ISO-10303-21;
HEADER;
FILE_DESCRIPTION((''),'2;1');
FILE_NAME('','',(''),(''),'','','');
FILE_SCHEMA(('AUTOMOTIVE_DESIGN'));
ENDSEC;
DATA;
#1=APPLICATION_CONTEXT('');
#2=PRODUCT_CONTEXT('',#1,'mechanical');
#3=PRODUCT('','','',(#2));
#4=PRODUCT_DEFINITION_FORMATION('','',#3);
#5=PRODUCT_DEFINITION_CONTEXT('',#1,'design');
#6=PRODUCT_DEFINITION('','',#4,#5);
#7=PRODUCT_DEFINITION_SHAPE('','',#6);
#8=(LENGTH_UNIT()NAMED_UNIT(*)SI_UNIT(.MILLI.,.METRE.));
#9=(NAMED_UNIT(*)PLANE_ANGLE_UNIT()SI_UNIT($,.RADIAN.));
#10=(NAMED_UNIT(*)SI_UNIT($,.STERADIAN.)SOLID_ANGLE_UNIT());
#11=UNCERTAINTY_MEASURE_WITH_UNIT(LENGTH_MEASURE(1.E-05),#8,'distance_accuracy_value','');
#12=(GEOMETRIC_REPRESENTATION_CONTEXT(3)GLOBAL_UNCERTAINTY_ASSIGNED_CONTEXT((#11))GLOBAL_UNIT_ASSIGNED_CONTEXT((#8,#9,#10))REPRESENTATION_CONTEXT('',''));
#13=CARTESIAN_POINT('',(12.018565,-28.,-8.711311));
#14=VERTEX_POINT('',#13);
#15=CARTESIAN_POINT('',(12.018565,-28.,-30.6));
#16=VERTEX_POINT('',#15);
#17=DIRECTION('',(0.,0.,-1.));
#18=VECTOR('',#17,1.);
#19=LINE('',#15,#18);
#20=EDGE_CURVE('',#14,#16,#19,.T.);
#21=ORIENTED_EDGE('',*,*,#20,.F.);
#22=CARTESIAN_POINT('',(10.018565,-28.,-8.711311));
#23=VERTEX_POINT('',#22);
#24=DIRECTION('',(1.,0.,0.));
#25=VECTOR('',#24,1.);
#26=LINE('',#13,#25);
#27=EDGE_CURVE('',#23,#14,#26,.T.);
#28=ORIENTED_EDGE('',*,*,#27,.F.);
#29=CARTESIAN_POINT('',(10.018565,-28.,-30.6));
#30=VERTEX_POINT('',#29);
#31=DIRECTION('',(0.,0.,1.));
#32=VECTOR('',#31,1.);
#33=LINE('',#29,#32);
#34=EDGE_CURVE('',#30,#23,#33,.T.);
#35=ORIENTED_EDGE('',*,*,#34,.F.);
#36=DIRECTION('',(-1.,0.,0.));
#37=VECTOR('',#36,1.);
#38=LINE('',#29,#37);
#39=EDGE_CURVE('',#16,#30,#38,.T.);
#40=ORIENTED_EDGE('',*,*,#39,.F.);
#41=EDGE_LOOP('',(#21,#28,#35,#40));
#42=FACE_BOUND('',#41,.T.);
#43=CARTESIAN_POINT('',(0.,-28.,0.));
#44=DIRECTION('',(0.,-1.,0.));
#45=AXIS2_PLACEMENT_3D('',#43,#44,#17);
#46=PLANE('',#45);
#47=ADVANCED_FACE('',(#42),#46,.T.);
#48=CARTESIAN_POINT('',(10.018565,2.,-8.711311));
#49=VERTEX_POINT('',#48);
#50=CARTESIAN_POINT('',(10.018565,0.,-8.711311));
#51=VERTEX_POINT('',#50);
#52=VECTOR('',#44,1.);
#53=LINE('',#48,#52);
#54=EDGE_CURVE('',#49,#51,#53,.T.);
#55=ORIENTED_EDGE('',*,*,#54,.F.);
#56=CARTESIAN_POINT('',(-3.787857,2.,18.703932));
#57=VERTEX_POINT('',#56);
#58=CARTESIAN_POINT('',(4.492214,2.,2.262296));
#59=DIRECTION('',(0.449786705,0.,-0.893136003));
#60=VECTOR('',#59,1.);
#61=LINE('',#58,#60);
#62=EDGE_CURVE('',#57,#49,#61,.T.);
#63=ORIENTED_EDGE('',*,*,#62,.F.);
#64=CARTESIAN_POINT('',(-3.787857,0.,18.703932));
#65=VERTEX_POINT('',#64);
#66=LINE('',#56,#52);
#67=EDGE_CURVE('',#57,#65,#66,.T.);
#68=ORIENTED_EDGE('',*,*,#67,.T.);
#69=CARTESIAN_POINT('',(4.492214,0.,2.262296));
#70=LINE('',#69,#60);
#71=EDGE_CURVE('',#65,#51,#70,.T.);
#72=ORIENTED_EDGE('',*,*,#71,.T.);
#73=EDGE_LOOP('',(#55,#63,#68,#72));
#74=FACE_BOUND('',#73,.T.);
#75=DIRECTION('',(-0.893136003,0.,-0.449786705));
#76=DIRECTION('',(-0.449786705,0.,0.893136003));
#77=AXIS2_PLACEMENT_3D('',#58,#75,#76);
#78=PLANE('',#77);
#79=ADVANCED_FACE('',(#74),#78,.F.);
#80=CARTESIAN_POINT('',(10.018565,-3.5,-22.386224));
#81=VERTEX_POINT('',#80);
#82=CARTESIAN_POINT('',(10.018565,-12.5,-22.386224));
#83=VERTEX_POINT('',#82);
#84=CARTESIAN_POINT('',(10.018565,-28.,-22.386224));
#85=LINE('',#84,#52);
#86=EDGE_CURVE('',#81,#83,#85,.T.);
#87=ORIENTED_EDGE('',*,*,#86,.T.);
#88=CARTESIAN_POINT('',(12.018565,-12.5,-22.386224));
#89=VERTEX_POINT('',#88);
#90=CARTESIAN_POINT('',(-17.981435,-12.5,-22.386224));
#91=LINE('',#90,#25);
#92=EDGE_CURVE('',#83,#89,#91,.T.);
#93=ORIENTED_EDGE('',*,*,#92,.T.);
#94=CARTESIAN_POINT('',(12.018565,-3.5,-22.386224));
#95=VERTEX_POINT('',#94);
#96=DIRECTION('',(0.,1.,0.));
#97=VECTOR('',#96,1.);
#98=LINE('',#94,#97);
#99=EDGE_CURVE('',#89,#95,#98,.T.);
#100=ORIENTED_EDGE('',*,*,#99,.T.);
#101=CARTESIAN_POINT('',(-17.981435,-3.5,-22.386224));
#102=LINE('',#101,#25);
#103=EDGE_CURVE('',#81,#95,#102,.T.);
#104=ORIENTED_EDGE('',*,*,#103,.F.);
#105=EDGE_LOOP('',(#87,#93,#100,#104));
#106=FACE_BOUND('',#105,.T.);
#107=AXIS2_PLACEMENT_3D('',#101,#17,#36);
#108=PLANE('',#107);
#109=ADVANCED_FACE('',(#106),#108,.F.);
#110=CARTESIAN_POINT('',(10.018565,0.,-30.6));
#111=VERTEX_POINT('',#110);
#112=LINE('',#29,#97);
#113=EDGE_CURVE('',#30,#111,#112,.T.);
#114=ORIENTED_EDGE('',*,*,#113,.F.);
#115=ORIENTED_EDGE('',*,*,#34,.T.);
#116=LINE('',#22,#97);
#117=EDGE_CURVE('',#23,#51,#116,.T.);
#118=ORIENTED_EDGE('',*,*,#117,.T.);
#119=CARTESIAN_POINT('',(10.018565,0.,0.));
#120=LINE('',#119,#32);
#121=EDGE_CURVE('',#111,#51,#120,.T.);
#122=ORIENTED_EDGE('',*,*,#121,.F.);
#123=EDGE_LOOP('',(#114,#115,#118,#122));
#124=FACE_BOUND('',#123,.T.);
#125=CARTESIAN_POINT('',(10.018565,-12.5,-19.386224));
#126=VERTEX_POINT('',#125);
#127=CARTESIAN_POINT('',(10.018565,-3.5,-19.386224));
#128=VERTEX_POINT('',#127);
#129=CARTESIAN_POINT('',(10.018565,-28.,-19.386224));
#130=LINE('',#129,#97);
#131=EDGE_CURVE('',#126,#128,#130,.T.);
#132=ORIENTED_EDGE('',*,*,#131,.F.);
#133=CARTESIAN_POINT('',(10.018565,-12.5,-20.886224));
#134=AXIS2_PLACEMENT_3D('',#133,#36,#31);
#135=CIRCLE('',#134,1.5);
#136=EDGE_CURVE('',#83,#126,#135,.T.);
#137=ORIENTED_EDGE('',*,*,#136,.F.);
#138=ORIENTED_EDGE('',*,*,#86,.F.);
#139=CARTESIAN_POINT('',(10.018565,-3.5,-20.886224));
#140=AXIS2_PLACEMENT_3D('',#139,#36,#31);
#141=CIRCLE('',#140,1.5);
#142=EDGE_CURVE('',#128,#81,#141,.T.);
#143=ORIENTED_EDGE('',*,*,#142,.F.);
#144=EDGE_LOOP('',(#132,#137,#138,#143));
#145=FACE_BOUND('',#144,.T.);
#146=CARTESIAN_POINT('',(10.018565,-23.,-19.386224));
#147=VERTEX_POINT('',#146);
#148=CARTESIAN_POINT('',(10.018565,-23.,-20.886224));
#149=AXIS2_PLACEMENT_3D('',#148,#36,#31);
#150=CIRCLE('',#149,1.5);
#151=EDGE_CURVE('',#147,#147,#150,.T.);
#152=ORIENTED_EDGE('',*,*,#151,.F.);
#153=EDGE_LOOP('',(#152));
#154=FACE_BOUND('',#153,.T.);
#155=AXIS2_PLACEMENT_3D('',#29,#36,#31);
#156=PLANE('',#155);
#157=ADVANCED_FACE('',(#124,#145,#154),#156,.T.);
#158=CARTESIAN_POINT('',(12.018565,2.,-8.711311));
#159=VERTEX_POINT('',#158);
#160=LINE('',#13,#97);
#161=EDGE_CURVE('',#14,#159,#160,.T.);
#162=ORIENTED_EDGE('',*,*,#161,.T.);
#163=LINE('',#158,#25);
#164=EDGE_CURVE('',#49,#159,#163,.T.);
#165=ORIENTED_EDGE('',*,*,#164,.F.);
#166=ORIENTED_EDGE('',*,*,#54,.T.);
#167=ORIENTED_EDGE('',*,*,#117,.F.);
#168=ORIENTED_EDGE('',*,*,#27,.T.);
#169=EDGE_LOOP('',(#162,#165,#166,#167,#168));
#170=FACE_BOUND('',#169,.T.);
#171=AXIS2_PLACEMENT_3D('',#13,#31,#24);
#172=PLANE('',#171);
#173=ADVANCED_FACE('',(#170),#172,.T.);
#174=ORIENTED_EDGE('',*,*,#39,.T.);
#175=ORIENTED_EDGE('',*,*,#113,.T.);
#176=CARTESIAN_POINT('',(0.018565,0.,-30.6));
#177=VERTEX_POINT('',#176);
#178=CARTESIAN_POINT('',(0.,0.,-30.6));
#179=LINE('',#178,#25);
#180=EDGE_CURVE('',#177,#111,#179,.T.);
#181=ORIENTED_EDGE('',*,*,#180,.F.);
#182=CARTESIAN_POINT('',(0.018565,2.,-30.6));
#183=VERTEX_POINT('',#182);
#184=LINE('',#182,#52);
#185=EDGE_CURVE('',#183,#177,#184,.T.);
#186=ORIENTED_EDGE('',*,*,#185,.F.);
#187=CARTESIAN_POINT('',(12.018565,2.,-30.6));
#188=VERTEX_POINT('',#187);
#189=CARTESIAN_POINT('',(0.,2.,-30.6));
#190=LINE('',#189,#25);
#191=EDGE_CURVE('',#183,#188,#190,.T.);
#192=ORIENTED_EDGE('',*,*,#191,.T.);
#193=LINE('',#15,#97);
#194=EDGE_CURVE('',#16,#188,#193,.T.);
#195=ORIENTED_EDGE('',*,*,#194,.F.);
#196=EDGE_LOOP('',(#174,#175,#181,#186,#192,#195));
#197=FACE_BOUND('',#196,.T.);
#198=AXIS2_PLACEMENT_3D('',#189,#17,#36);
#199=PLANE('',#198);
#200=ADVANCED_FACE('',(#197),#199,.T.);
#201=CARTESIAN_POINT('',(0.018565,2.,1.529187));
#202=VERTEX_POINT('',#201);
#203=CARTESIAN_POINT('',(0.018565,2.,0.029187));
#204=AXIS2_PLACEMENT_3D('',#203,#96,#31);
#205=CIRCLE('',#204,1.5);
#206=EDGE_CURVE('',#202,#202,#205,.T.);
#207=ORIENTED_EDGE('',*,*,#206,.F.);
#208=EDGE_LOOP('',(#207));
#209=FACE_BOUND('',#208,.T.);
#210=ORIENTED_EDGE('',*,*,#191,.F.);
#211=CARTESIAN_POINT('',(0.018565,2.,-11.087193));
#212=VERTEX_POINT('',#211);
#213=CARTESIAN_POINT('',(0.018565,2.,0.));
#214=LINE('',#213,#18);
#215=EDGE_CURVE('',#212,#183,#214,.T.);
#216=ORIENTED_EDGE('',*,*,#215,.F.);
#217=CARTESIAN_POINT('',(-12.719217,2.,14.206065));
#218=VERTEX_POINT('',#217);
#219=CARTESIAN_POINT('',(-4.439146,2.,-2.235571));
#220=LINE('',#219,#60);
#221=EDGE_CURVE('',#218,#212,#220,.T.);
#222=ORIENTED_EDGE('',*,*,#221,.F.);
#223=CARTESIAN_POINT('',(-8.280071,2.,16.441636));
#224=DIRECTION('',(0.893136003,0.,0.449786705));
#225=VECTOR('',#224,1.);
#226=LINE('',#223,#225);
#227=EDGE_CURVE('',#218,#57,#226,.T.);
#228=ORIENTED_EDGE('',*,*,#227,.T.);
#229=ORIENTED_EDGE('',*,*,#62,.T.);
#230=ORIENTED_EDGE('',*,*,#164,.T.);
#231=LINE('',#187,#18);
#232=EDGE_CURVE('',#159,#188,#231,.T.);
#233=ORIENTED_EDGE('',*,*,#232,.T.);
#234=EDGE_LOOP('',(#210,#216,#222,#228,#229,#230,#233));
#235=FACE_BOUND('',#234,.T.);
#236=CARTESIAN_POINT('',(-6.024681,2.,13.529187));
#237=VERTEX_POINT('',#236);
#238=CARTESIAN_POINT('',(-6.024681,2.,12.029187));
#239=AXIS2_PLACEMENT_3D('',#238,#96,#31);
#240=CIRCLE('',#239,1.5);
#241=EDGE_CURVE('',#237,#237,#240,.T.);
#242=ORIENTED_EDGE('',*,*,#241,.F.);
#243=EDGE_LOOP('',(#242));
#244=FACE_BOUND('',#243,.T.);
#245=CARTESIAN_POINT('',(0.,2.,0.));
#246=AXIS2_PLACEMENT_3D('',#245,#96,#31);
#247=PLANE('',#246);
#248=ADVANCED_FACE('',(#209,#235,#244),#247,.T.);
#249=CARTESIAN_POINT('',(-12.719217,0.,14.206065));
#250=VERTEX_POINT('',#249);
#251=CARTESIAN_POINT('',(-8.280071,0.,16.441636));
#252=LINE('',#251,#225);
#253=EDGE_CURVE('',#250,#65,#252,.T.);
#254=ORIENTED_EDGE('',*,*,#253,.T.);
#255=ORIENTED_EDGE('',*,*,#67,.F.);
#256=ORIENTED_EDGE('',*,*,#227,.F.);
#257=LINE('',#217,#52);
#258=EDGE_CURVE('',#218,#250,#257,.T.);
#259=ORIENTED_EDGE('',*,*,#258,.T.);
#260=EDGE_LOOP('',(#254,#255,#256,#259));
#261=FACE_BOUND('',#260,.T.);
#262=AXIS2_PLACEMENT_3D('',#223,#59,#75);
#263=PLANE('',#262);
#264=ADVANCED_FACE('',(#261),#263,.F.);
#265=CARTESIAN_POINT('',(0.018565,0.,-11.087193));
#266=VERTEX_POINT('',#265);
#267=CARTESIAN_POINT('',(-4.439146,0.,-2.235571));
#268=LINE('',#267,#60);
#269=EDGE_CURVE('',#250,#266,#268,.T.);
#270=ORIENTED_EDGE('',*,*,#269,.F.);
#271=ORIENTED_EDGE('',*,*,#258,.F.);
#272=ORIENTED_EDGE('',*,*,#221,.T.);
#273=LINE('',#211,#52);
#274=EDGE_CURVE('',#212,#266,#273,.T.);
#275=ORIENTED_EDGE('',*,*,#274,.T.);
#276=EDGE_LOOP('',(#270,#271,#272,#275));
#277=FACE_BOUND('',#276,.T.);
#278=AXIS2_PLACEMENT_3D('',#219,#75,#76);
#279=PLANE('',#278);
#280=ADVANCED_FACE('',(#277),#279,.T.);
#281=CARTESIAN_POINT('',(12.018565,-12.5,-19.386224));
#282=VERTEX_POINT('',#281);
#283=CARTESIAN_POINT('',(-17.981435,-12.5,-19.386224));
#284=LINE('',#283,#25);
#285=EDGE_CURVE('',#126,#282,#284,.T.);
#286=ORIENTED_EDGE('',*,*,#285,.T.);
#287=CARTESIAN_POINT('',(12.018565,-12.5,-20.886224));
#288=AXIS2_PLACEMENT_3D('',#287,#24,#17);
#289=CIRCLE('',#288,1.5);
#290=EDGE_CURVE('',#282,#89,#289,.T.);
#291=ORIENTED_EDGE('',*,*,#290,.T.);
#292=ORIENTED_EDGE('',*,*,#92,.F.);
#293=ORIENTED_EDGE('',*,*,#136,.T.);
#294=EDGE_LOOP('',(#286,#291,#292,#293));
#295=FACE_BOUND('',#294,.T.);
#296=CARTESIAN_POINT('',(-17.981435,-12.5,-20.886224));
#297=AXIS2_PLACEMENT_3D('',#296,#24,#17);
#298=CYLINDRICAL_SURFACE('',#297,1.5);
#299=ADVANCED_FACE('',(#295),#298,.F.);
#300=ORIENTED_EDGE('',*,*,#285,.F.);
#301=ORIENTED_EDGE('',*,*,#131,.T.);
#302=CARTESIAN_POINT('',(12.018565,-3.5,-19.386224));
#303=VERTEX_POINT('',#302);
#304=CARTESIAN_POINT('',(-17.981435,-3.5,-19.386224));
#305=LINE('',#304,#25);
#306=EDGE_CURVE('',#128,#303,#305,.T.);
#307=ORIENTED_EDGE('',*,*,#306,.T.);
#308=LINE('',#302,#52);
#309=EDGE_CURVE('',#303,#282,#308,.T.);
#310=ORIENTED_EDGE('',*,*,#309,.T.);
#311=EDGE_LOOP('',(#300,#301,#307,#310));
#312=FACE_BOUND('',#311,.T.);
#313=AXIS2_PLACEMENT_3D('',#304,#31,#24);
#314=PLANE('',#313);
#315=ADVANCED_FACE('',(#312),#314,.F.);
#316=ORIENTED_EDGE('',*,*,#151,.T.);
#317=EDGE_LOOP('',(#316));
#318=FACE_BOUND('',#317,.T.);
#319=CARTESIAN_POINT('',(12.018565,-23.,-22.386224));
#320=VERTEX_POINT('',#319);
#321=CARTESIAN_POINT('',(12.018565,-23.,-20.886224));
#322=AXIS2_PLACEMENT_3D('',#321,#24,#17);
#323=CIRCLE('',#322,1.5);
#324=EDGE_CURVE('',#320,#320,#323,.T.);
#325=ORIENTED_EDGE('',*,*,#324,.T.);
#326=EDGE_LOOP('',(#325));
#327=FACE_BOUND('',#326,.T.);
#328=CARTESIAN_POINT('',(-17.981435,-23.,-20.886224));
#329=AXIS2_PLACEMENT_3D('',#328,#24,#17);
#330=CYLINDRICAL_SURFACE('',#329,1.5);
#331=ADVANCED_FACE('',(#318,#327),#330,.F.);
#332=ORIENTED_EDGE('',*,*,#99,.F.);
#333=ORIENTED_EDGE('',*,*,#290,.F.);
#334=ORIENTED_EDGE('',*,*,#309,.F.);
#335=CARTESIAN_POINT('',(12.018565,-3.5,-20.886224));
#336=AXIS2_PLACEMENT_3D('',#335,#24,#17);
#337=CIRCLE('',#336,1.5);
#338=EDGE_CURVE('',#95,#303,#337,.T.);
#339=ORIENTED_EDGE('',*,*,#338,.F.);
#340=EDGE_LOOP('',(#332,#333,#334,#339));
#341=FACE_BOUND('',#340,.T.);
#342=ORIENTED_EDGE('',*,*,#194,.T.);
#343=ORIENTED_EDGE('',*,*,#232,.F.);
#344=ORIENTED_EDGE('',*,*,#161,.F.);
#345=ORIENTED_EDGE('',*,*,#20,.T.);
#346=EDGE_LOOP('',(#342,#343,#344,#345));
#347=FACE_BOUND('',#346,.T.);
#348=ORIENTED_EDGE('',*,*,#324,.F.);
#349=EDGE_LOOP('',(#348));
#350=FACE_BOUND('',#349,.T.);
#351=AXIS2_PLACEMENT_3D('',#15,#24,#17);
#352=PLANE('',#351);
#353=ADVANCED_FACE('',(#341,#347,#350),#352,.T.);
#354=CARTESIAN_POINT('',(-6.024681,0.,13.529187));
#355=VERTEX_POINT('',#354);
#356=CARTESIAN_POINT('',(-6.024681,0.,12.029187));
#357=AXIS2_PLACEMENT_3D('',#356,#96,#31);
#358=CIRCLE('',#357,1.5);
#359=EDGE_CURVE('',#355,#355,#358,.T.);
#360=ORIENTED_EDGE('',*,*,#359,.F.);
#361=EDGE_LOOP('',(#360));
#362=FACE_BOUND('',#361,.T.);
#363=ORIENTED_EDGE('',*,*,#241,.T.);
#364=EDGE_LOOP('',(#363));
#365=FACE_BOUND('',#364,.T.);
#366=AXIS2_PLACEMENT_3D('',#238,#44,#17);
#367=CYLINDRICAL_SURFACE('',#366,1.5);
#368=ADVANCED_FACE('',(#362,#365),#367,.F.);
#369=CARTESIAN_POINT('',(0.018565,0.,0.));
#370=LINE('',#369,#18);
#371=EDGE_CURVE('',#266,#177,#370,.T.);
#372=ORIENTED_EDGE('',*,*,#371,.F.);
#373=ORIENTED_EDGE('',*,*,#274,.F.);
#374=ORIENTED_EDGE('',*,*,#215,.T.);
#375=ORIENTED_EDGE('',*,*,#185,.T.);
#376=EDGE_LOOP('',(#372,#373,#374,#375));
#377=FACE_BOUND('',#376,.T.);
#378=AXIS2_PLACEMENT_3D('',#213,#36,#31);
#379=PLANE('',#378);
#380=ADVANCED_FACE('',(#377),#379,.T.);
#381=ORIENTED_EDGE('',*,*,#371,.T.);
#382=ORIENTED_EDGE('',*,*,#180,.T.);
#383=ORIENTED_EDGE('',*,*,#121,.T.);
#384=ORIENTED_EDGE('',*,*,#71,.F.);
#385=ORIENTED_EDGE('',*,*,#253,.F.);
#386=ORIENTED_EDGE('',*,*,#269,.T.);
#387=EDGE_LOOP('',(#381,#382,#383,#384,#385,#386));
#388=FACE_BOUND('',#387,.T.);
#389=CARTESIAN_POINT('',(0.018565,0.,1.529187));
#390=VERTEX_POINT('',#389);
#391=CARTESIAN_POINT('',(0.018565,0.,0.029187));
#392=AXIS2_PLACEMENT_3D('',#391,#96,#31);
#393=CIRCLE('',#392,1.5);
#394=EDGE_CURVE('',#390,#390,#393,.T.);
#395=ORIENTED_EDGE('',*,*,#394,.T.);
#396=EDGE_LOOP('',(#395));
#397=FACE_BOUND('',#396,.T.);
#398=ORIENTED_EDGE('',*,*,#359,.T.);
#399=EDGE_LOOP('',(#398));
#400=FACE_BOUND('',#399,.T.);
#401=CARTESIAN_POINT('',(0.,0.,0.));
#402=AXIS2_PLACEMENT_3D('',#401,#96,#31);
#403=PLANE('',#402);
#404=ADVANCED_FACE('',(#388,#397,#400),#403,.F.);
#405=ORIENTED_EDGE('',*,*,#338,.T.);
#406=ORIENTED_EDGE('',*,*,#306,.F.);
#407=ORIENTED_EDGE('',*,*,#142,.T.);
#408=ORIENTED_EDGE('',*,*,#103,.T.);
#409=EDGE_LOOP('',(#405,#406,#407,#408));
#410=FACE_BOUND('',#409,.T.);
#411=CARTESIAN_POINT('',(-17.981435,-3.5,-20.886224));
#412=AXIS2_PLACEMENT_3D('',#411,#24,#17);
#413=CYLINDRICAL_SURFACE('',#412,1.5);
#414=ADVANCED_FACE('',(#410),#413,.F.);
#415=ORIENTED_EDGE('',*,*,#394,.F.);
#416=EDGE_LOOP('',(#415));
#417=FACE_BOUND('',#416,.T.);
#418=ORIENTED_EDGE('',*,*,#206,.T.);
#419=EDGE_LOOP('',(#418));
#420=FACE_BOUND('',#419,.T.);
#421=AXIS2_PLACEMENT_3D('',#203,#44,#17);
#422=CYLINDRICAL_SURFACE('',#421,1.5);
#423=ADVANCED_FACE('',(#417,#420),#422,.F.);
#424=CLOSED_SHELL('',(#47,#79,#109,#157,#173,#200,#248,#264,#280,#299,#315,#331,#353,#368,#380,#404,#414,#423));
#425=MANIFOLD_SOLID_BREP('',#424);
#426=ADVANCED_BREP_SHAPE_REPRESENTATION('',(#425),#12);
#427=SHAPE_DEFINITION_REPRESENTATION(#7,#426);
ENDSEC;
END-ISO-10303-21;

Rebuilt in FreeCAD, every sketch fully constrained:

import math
import FreeCAD as App
import Part
import Sketcher
from FreeCAD import Vector
Q = App.Units.Quantity


def add_polygon(sketch, points):
    """Adds a closed chain of lines whose ends are joined by coincident constraints."""
    first, n = sketch.GeometryCount, len(points)
    for a, b in zip(points, points[1:] + points[:1]):
        sketch.addGeometry(Part.LineSegment(App.Vector(*a, 0), App.Vector(*b, 0)), False)
    for i in range(n):
        sketch.addConstraint(Sketcher.Constraint("Coincident", first + i, 2, first + (i + 1) % n, 1))

doc = App.newDocument("Part")
params = doc.addObject("Spreadsheet::Sheet", "Params")
for row, (alias, value) in enumerate([
    ("sketch1_diameter", "3 mm"),
    ("sketch1_width", "10 mm"),
    ("sketch1_length", "10 mm"),
    ("pad1_length", "2 mm"),
    ("sketch2_width", "2 mm"),
    ("pad2_length", "30 mm"),
    ("sketch3_diameter", "3 mm"),
    ("sketch3_width", "9 mm"),
    ("pocket1_length", "30 mm"),
], start=1):
    params.set(f"A{row}", alias)
    params.set(f"B{row}", "=" + value)
    params.setAlias(f"B{row}", alias)

body = doc.addObject("PartDesign::Body", "Body")

sketch1 = doc.addObject("Sketcher::SketchObject", "Sketch")
body.addObject(sketch1)
sketch1.AttachmentSupport = (doc.XZ_Plane, [""])
sketch1.MapMode = "FlatFace"
add_polygon(sketch1, [(10, -8.7), (10, -30.6), (0, -30.6), (0, -11.1), (-12.7, 14.2), (-3.8, 18.7)])
sketch1.addGeometry(Part.Circle(Vector(-6, 12, 0), Vector(0, 0, 1), 1.5), False)
sketch1.addGeometry(Part.Circle(Vector(0, 0, 0), Vector(0, 0, 1), 1.5), False)
sketch1.addConstraint(Sketcher.Constraint("Vertical", 0))
sketch1.addConstraint(Sketcher.Constraint("Horizontal", 1))
sketch1.addConstraint(Sketcher.Constraint("Vertical", 2))
sketch1.addConstraint(Sketcher.Constraint("Equal", 6, 7))
sketch1.addConstraint(Sketcher.Constraint("Perpendicular", 3, 4))
sketch1.addConstraint(Sketcher.Constraint("Perpendicular", 4, 5))
sketch1.addConstraint(Sketcher.Constraint("Vertical", 7, 3, 1, 2))
sketch1.addConstraint(Sketcher.Constraint("Diameter", 6, Q("3 mm")))
sketch1.addConstraint(Sketcher.Constraint("DistanceX", 1, 2, 1, 1, Q("10 mm")))
sketch1.addConstraint(Sketcher.Constraint("Distance", 4, Q("10 mm")))
sketch1.addConstraint(Sketcher.Constraint("DistanceY", 7, 3, 6, 3, Q("12 mm")))
sketch1.addConstraint(Sketcher.Constraint("DistanceY", 0, 2, -1, 1, Q("30.6 mm")))
sketch1.addConstraint(Sketcher.Constraint("Angle", 3, Q("116.73 deg")))
sketch1.addConstraint(Sketcher.Constraint("DistanceY", 0, 2, 0, 1, Q("21.888689 mm")))
sketch1.addConstraint(Sketcher.Constraint("DistanceY", 5, 2, 7, 3, Q("8.740499 mm")))
sketch1.addConstraint(Sketcher.Constraint("DistanceX", 6, 3, -1, 1, Q("6.024681 mm")))
sketch1.addConstraint(Sketcher.Constraint("DistanceY", 6, 3, 3, 2, Q("2.176878 mm")))
sketch1.addConstraint(Sketcher.Constraint("DistanceX", -1, 1, 7, 3, Q("0.018565 mm")))
sketch1.setExpression("Constraints[13]", "Params.sketch1_diameter")
sketch1.setExpression("Constraints[14]", "Params.sketch1_width")
sketch1.setExpression("Constraints[15]", "Params.sketch1_length")
pad1 = doc.addObject("PartDesign::Pad", "Pad")
body.addObject(pad1)
pad1.Profile = sketch1
pad1.setExpression("Length", "Params.pad1_length")
pad1.Reversed = True

sketch2 = doc.addObject("Sketcher::SketchObject", "Sketch001")
body.addObject(sketch2)
sketch2.AttachmentSupport = (doc.XZ_Plane, [""])
sketch2.MapMode = "FlatFace"
sketch2.AttachmentOffset = App.Placement(Vector(0, 0, -2), App.Rotation())
add_polygon(sketch2, [(10, -30.6), (10, -8.7), (12, -8.7), (12, -30.6)])
sketch2.addConstraint(Sketcher.Constraint("Vertical", 0))
sketch2.addConstraint(Sketcher.Constraint("Horizontal", 1))
sketch2.addConstraint(Sketcher.Constraint("Vertical", 2))
sketch2.addConstraint(Sketcher.Constraint("Horizontal", 3))
sketch2.addConstraint(Sketcher.Constraint("DistanceX", 1, 1, 1, 2, Q("2 mm")))
sketch2.addConstraint(Sketcher.Constraint("DistanceY", 2, 2, -1, 1, Q("30.6 mm")))
sketch2.addConstraint(Sketcher.Constraint("DistanceY", 0, 1, 0, 2, Q("21.888689 mm")))
sketch2.addConstraint(Sketcher.Constraint("DistanceX", -1, 1, 0, 2, Q("10.018565 mm")))
sketch2.setExpression("Constraints[8]", "Params.sketch2_width")
pad2 = doc.addObject("PartDesign::Pad", "Pad001")
body.addObject(pad2)
pad2.Profile = sketch2
pad2.setExpression("Length", "Params.pad2_length")

sketch3 = doc.addObject("Sketcher::SketchObject", "Sketch002")
body.addObject(sketch3)
sketch3.AttachmentSupport = (doc.YZ_Plane, [""])
sketch3.MapMode = "FlatFace"
sketch3.AttachmentOffset = App.Placement(Vector(0, 0, 12.018565), App.Rotation())
sketch3.addGeometry(Part.Circle(Vector(-23, -20.9, 0), Vector(0, 0, 1), 1.5), False)
sketch3.addGeometry(Part.LineSegment(Vector(-12.5, -22.4, 0), Vector(-3.5, -22.4, 0)), False)
sketch3.addGeometry(Part.ArcOfCircle(Part.Circle(Vector(-3.5, -20.9, 0), Vector(0, 0, 1), 1.5), math.radians(-90), math.radians(90)), False)
sketch3.addGeometry(Part.LineSegment(Vector(-3.5, -19.4, 0), Vector(-12.5, -19.4, 0)), False)
sketch3.addGeometry(Part.ArcOfCircle(Part.Circle(Vector(-12.5, -20.9, 0), Vector(0, 0, 1), 1.5), math.radians(90), math.radians(270)), False)
sketch3.addConstraint(Sketcher.Constraint("Tangent", 1, 2, 2, 1))
sketch3.addConstraint(Sketcher.Constraint("Tangent", 2, 2, 3, 1))
sketch3.addConstraint(Sketcher.Constraint("Tangent", 3, 2, 4, 1))
sketch3.addConstraint(Sketcher.Constraint("Tangent", 4, 2, 1, 1))
sketch3.addConstraint(Sketcher.Constraint("Horizontal", 1))
sketch3.addConstraint(Sketcher.Constraint("Horizontal", 3))
sketch3.addConstraint(Sketcher.Constraint("Equal", 0, 2))
sketch3.addConstraint(Sketcher.Constraint("Horizontal", 0, 3, 2, 3))
sketch3.addConstraint(Sketcher.Constraint("Diameter", 0, Q("3 mm")))
sketch3.addConstraint(Sketcher.Constraint("DistanceX", 1, 1, 1, 2, Q("9 mm")))
sketch3.addConstraint(Sketcher.Constraint("DistanceX", 0, 3, -1, 1, Q("23 mm")))
sketch3.addConstraint(Sketcher.Constraint("DistanceX", 2, 3, -1, 1, Q("3.5 mm")))
sketch3.addConstraint(Sketcher.Constraint("DistanceY", 0, 3, -1, 1, Q("20.886224 mm")))
sketch3.setExpression("Constraints[8]", "Params.sketch3_diameter")
sketch3.setExpression("Constraints[9]", "Params.sketch3_width")
pocket1 = doc.addObject("PartDesign::Pocket", "Pocket")
body.addObject(pocket1)
pocket1.Profile = sketch3
pocket1.setExpression("Length", "Params.pocket1_length")

doc.recompute()
